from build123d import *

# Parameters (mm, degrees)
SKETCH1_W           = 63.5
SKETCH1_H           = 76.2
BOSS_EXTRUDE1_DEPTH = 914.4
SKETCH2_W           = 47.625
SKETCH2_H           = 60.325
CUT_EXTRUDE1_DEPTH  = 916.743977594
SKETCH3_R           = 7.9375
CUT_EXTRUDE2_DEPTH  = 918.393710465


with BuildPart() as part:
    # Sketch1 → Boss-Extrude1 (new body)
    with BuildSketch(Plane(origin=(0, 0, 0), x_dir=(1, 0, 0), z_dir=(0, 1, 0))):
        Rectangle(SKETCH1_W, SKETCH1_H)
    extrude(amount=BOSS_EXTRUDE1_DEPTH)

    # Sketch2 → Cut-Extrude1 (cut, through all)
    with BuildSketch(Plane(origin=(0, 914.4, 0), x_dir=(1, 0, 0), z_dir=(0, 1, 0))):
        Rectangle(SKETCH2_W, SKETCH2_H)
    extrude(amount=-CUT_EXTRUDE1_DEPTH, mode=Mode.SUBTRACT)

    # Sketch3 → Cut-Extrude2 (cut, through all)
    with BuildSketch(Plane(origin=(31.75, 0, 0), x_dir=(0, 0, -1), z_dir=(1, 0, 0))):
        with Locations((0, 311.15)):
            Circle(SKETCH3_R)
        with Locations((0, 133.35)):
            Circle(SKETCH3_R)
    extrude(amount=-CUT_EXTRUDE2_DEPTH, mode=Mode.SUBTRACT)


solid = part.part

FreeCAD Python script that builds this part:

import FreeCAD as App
import Part
import Sketcher
Q = App.Units.Quantity

doc = App.newDocument("Part")
body = doc.addObject("PartDesign::Body", "Body")

sketch1 = body.newObject("Sketcher::SketchObject", "Sketch")
sketch1.AttachmentSupport = (doc.getObject("XZ_Plane"), [""])
sketch1.MapMode = "FlatFace"
sketch1.addGeometry([
    Part.LineSegment(App.Vector(-32, -38, 0), App.Vector(-32, 38, 0)),
    Part.LineSegment(App.Vector(-32, 38, 0), App.Vector(32, 38, 0)),
    Part.LineSegment(App.Vector(32, 38, 0), App.Vector(32, -38, 0)),
    Part.LineSegment(App.Vector(32, -38, 0), App.Vector(-32, -38, 0)),
], False)
sketch1.addConstraint([
    Sketcher.Constraint("Coincident", 0, 2, 1, 1),
    Sketcher.Constraint("Coincident", 1, 2, 2, 1),
    Sketcher.Constraint("Coincident", 2, 2, 3, 1),
    Sketcher.Constraint("Coincident", 3, 2, 0, 1),
    Sketcher.Constraint("Vertical", 0),
    Sketcher.Constraint("Horizontal", 1),
    Sketcher.Constraint("Vertical", 2),
    Sketcher.Constraint("Horizontal", 3),
    Sketcher.Constraint("Symmetric", 0, 2, 2, 2, -1, 1),
    Sketcher.Constraint("DistanceY", 0, 1, 0, 2, Q("3 in")),
    Sketcher.Constraint("DistanceX", 1, 1, 1, 2, Q("2.5 in")),
])
pad1 = body.newObject("PartDesign::Pad", "Pad")
pad1.Profile = sketch1
pad1.Length = Q("36 in")
pad1.Reversed = True

sketch2 = body.newObject("Sketcher::SketchObject", "Sketch001")
sketch2.AttachmentSupport = (doc.getObject("XZ_Plane"), [""])
sketch2.MapMode = "FlatFace"
sketch2.AttachmentOffset = App.Placement(App.Vector(0, 0, -36 * 25.4), App.Rotation())
sketch2.addGeometry([
    Part.LineSegment(App.Vector(-24, -30, 0), App.Vector(-24, 30, 0)),
    Part.LineSegment(App.Vector(-24, 30, 0), App.Vector(24, 30, 0)),
    Part.LineSegment(App.Vector(24, 30, 0), App.Vector(24, -30, 0)),
    Part.LineSegment(App.Vector(24, -30, 0), App.Vector(-24, -30, 0)),
], False)
sketch2.addConstraint([
    Sketcher.Constraint("Coincident", 0, 2, 1, 1),
    Sketcher.Constraint("Coincident", 1, 2, 2, 1),
    Sketcher.Constraint("Coincident", 2, 2, 3, 1),
    Sketcher.Constraint("Coincident", 3, 2, 0, 1),
    Sketcher.Constraint("Vertical", 0),
    Sketcher.Constraint("Horizontal", 1),
    Sketcher.Constraint("Vertical", 2),
    Sketcher.Constraint("Horizontal", 3),
    Sketcher.Constraint("Symmetric", 0, 2, 2, 2, -1, 1),
    Sketcher.Constraint("DistanceX", 1, 1, 1, 2, Q("1.875 in")),
    Sketcher.Constraint("DistanceY", 0, 1, 0, 2, Q("2.375 in")),
])
pocket1 = body.newObject("PartDesign::Pocket", "Pocket")
pocket1.Profile = sketch2
pocket1.Type = "ThroughAll"
pocket1.Reversed = True

sketch3 = body.newObject("Sketcher::SketchObject", "Sketch002")
sketch3.AttachmentSupport = (doc.getObject("YZ_Plane"), [""])
sketch3.MapMode = "FlatFace"
sketch3.AttachmentOffset = App.Placement(App.Vector(0, 0, 1.25 * 25.4), App.Rotation())
sketch3.addGeometry([
    Part.Circle(App.Vector(311, 0, 0), App.Vector(0, 0, 1), 8),
    Part.Circle(App.Vector(133, 0, 0), App.Vector(0, 0, 1), 8),
], False)
sketch3.addConstraint([
    Sketcher.Constraint("Equal", 0, 1),
    Sketcher.Constraint("PointOnObject", 0, 3, -1),
    Sketcher.Constraint("PointOnObject", 1, 3, -1),
    Sketcher.Constraint("Diameter", 0, Q("0.625 in")),
    Sketcher.Constraint("DistanceX", 1, 3, 0, 3, Q("7 in")),
    Sketcher.Constraint("DistanceX", -1, 1, 0, 3, Q("12.25 in")),
])
pocket2 = body.newObject("PartDesign::Pocket", "Pocket001")
pocket2.Profile = sketch3
pocket2.Type = "ThroughAll"

doc.recompute()
